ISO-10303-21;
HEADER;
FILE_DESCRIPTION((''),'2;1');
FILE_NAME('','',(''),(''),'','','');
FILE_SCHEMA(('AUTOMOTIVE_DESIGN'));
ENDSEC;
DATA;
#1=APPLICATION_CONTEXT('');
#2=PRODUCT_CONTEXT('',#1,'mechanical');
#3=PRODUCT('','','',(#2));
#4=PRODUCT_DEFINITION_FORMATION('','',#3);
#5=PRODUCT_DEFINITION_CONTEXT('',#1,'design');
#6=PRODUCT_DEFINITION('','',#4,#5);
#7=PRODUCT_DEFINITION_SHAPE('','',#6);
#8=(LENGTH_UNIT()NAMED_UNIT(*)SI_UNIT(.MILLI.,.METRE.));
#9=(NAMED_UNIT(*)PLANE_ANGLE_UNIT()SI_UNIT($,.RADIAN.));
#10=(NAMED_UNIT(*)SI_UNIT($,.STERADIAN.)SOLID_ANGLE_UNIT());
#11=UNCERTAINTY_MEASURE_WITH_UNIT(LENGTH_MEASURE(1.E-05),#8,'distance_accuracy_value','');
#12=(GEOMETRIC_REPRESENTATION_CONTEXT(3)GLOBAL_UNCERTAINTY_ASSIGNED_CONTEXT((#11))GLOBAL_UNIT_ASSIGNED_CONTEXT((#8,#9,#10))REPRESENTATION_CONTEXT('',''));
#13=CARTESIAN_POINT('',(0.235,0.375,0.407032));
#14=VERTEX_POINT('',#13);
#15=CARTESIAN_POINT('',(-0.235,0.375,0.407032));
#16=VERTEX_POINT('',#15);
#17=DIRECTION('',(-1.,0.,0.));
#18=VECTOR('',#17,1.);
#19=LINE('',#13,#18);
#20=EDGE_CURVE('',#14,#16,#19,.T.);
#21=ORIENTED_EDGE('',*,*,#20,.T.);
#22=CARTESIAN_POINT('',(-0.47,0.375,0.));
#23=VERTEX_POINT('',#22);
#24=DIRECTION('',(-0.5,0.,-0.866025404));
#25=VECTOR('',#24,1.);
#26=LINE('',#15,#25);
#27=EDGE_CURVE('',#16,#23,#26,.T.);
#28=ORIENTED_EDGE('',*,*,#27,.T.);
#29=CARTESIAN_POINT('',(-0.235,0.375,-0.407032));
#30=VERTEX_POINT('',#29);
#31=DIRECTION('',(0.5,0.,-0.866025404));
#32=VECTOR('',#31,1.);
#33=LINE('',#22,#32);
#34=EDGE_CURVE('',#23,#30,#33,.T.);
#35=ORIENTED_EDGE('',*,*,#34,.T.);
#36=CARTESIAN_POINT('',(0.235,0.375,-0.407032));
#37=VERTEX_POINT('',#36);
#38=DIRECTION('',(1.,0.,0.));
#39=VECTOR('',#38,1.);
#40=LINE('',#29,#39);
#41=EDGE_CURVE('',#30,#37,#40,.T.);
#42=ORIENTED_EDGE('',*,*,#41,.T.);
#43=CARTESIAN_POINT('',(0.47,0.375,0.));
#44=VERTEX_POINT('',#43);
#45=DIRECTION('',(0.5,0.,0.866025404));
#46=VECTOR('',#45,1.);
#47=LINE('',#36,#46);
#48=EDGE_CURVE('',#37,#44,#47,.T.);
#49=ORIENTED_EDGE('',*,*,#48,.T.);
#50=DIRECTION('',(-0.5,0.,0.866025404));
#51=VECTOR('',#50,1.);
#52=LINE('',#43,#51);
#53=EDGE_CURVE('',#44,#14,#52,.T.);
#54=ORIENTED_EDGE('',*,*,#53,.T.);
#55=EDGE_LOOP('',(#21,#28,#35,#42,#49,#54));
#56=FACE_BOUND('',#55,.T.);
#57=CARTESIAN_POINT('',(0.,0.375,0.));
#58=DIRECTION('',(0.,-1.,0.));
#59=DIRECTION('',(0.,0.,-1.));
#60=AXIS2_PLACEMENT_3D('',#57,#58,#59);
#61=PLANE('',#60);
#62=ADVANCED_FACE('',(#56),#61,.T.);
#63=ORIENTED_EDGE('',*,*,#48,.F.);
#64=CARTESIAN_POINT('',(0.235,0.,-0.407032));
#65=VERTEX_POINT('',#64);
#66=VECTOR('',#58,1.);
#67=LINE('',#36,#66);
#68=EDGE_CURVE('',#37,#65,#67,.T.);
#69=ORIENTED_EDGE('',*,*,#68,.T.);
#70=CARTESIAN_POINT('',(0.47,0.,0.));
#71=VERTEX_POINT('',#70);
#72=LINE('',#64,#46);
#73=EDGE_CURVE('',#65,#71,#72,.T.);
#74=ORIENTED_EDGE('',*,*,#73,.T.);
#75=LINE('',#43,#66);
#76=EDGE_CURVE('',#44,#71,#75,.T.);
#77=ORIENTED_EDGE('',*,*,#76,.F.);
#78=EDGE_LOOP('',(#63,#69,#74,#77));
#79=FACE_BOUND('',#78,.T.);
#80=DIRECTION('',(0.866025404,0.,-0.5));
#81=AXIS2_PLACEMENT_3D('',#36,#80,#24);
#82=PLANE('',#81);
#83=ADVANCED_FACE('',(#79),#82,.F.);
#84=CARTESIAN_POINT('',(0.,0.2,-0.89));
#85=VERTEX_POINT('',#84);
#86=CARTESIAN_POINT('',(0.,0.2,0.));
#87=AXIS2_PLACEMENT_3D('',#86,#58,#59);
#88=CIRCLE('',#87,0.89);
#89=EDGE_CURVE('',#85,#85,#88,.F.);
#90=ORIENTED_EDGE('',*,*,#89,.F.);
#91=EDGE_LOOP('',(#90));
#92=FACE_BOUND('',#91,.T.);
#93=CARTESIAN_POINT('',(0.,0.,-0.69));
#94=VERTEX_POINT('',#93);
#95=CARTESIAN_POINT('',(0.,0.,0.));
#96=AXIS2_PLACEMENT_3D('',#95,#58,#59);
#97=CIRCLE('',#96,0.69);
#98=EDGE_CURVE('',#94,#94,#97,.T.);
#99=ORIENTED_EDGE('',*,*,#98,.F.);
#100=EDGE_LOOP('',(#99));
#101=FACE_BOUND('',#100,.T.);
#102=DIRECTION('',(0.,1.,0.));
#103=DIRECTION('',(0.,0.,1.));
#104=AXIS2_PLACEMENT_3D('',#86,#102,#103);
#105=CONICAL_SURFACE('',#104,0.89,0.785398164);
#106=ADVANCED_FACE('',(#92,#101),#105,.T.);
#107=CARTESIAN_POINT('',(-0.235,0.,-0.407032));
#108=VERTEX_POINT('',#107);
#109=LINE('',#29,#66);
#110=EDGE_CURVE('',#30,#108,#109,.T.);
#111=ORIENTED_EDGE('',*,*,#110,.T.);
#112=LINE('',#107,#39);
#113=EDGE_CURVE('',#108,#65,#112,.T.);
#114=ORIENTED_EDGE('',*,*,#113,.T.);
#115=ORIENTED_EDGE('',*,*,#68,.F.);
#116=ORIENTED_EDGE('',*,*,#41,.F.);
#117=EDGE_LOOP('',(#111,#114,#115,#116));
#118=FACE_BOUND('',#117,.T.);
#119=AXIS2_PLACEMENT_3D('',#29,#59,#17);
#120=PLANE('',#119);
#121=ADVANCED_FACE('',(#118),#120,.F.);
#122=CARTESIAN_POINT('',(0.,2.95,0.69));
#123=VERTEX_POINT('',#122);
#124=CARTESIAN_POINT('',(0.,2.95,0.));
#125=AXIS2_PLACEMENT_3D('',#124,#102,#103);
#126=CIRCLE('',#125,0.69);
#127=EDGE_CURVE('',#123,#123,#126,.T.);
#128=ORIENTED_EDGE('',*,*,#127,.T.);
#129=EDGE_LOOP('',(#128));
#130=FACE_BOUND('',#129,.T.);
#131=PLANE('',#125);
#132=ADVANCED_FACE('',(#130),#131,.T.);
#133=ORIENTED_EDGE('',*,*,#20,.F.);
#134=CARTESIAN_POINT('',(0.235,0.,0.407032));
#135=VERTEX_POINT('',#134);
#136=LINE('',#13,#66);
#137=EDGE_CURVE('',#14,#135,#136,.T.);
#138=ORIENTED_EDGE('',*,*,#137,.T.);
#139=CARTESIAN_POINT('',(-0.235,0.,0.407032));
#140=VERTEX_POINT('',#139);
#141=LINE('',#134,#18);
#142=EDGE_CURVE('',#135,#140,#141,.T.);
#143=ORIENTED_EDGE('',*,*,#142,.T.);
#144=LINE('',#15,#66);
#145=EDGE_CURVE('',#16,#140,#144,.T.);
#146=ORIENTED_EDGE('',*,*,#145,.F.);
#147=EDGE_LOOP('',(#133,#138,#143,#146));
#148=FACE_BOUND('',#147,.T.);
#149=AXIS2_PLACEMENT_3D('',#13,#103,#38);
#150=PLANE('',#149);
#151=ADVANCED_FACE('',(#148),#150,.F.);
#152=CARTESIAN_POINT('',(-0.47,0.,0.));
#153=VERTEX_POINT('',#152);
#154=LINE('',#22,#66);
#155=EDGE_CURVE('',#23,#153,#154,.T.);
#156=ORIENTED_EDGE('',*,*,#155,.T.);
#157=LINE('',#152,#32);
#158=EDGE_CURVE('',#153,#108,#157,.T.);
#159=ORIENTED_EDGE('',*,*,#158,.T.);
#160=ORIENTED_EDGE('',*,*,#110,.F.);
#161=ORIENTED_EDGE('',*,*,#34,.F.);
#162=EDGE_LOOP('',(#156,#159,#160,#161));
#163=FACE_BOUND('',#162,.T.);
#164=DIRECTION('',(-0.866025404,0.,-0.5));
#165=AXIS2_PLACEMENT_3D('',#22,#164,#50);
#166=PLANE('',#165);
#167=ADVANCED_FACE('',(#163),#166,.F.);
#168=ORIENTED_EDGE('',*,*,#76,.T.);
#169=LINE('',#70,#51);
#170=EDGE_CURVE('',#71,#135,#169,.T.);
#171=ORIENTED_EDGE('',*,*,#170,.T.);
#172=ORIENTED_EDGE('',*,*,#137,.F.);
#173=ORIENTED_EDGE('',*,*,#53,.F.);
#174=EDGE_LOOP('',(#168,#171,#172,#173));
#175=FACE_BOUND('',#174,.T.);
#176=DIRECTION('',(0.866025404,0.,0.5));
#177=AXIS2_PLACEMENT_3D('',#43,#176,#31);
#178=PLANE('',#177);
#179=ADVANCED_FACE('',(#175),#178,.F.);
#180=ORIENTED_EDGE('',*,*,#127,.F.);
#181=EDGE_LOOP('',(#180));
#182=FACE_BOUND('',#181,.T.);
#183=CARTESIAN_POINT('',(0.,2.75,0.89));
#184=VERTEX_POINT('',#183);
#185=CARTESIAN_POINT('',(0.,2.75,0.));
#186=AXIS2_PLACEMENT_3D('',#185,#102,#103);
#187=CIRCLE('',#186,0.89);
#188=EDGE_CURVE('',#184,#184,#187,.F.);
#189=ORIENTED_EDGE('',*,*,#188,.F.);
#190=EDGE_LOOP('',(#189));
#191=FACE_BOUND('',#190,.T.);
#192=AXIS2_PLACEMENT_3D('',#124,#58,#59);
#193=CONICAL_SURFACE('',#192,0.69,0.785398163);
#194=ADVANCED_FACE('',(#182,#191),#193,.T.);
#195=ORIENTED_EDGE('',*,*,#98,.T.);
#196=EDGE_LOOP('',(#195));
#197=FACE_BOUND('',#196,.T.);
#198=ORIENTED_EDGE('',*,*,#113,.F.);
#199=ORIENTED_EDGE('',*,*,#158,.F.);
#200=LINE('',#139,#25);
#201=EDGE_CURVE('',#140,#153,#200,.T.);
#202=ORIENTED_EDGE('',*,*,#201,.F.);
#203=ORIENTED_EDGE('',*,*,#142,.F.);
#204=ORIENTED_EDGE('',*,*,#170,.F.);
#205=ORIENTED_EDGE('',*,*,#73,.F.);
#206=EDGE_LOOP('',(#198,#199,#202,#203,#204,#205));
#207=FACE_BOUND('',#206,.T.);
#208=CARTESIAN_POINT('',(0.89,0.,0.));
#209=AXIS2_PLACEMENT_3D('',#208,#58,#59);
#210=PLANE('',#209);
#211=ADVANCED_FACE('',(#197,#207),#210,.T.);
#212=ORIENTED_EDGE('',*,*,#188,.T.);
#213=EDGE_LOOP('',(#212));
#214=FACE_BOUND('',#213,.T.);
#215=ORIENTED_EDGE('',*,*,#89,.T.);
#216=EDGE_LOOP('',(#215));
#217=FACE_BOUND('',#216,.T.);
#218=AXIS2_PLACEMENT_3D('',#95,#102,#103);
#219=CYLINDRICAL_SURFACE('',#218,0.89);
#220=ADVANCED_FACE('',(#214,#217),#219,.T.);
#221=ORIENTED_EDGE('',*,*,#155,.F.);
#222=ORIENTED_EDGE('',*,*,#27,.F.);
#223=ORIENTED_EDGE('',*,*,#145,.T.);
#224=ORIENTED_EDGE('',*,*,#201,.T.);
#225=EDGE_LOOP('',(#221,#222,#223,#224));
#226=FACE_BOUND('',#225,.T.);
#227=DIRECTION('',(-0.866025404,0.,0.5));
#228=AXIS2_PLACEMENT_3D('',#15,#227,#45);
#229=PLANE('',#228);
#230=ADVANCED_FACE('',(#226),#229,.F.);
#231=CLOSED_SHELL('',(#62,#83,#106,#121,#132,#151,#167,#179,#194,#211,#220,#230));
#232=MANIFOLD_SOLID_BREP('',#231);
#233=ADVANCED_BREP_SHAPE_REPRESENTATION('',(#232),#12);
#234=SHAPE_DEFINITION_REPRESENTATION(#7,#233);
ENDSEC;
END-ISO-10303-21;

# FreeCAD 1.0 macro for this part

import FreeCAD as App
import Part
import Sketcher
Q = App.Units.Quantity


def edges_at(feature, points):
    """Names of the edges that pass closest to the given points."""
    edges = feature.Shape.Edges
    near = lambda p: min(range(len(edges)), key=lambda i: edges[i].distToShape(Part.Vertex(*p))[0])
    return sorted({f"Edge{near(p) + 1}" for p in points})


def add_polygon(sketch, points):
    """Adds a closed chain of lines whose ends are joined by coincident constraints."""
    first, n = sketch.GeometryCount, len(points)
    for a, b in zip(points, points[1:] + points[:1]):
        sketch.addGeometry(Part.LineSegment(App.Vector(*a, 0), App.Vector(*b, 0)), False)
    for i in range(n):
        sketch.addConstraint(Sketcher.Constraint("Coincident", first + i, 2, first + (i + 1) % n, 1))

doc = App.newDocument("Part")
body = doc.addObject("PartDesign::Body", "Body")

# Sketch on XY plane
sketch1 = body.newObject("Sketcher::SketchObject", "Sketch")
sketch1.AttachmentSupport = (doc.getObject("XY_Plane"), [""])
sketch1.MapMode = "FlatFace"
add_polygon(sketch1, [(0.89, 2.95), (0.89, 0), (0, 0), (0, 2.95)])  # lines 0-3
sketch1.addConstraint(Sketcher.Constraint("Vertical", 0))
sketch1.addConstraint(Sketcher.Constraint("Horizontal", 1))
sketch1.addConstraint(Sketcher.Constraint("Vertical", 2))
sketch1.addConstraint(Sketcher.Constraint("Horizontal", 3))
sketch1.addConstraint(Sketcher.Constraint("Coincident", 1, 2, -1, 1))
sketch1.addConstraint(Sketcher.Constraint("DistanceX", 1, 2, 1, 1, 0.89))
sketch1.addConstraint(Sketcher.Constraint("DistanceY", 0, 2, 0, 1, 2.95))
revolution = body.newObject("PartDesign::Revolution", "Revolution")
revolution.Profile = sketch1
revolution.ReferenceAxis = (sketch1, ["V_Axis"])
revolution.Angle = 360

# Sketch on XZ plane
sketch2 = body.newObject("Sketcher::SketchObject", "Sketch001")
sketch2.AttachmentSupport = (doc.getObject("XZ_Plane"), [""])
sketch2.MapMode = "FlatFace"
add_polygon(sketch2, [(-0.235, 0.407032), (-0.47, 0), (-0.235, -0.407032), (0.235, -0.407032), (0.47, 0), (0.235, 0.407032)])  # lines 0-5
sketch2.addConstraint(Sketcher.Constraint("Horizontal", 2))
sketch2.addConstraint(Sketcher.Constraint("Horizontal", 5))
sketch2.addConstraint(Sketcher.Constraint("Symmetric", 0, 2, 3, 2, -1, 1))
sketch2.addConstraint(Sketcher.Constraint("Symmetric", 1, 2, 4, 2, -1, 1))
sketch2.addConstraint(Sketcher.Constraint("PointOnObject", 0, 2, -1))
sketch2.addConstraint(Sketcher.Constraint("Parallel", 0, 3))
sketch2.addConstraint(Sketcher.Constraint("Vertical", 2, 2, 4, 2))
sketch2.addConstraint(Sketcher.Constraint("Angle", 0, Q("-120 deg")))
sketch2.addConstraint(Sketcher.Constraint("DistanceX", 2, 1, 2, 2, 0.47))
sketch2.addConstraint(Sketcher.Constraint("Distance", 0, 0.47))
pocket1 = body.newObject("PartDesign::Pocket", "Pocket")
pocket1.Profile = sketch2
pocket1.Length = 0.375
doc.recompute()

chamfer = body.newObject("PartDesign::Chamfer", "Chamfer")
chamfer.Base = (pocket1, edges_at(pocket1, [(-0.89, 2.95, 0), (-0.89, 0, 0)]))
chamfer.Size = 0.2

doc.recompute()
